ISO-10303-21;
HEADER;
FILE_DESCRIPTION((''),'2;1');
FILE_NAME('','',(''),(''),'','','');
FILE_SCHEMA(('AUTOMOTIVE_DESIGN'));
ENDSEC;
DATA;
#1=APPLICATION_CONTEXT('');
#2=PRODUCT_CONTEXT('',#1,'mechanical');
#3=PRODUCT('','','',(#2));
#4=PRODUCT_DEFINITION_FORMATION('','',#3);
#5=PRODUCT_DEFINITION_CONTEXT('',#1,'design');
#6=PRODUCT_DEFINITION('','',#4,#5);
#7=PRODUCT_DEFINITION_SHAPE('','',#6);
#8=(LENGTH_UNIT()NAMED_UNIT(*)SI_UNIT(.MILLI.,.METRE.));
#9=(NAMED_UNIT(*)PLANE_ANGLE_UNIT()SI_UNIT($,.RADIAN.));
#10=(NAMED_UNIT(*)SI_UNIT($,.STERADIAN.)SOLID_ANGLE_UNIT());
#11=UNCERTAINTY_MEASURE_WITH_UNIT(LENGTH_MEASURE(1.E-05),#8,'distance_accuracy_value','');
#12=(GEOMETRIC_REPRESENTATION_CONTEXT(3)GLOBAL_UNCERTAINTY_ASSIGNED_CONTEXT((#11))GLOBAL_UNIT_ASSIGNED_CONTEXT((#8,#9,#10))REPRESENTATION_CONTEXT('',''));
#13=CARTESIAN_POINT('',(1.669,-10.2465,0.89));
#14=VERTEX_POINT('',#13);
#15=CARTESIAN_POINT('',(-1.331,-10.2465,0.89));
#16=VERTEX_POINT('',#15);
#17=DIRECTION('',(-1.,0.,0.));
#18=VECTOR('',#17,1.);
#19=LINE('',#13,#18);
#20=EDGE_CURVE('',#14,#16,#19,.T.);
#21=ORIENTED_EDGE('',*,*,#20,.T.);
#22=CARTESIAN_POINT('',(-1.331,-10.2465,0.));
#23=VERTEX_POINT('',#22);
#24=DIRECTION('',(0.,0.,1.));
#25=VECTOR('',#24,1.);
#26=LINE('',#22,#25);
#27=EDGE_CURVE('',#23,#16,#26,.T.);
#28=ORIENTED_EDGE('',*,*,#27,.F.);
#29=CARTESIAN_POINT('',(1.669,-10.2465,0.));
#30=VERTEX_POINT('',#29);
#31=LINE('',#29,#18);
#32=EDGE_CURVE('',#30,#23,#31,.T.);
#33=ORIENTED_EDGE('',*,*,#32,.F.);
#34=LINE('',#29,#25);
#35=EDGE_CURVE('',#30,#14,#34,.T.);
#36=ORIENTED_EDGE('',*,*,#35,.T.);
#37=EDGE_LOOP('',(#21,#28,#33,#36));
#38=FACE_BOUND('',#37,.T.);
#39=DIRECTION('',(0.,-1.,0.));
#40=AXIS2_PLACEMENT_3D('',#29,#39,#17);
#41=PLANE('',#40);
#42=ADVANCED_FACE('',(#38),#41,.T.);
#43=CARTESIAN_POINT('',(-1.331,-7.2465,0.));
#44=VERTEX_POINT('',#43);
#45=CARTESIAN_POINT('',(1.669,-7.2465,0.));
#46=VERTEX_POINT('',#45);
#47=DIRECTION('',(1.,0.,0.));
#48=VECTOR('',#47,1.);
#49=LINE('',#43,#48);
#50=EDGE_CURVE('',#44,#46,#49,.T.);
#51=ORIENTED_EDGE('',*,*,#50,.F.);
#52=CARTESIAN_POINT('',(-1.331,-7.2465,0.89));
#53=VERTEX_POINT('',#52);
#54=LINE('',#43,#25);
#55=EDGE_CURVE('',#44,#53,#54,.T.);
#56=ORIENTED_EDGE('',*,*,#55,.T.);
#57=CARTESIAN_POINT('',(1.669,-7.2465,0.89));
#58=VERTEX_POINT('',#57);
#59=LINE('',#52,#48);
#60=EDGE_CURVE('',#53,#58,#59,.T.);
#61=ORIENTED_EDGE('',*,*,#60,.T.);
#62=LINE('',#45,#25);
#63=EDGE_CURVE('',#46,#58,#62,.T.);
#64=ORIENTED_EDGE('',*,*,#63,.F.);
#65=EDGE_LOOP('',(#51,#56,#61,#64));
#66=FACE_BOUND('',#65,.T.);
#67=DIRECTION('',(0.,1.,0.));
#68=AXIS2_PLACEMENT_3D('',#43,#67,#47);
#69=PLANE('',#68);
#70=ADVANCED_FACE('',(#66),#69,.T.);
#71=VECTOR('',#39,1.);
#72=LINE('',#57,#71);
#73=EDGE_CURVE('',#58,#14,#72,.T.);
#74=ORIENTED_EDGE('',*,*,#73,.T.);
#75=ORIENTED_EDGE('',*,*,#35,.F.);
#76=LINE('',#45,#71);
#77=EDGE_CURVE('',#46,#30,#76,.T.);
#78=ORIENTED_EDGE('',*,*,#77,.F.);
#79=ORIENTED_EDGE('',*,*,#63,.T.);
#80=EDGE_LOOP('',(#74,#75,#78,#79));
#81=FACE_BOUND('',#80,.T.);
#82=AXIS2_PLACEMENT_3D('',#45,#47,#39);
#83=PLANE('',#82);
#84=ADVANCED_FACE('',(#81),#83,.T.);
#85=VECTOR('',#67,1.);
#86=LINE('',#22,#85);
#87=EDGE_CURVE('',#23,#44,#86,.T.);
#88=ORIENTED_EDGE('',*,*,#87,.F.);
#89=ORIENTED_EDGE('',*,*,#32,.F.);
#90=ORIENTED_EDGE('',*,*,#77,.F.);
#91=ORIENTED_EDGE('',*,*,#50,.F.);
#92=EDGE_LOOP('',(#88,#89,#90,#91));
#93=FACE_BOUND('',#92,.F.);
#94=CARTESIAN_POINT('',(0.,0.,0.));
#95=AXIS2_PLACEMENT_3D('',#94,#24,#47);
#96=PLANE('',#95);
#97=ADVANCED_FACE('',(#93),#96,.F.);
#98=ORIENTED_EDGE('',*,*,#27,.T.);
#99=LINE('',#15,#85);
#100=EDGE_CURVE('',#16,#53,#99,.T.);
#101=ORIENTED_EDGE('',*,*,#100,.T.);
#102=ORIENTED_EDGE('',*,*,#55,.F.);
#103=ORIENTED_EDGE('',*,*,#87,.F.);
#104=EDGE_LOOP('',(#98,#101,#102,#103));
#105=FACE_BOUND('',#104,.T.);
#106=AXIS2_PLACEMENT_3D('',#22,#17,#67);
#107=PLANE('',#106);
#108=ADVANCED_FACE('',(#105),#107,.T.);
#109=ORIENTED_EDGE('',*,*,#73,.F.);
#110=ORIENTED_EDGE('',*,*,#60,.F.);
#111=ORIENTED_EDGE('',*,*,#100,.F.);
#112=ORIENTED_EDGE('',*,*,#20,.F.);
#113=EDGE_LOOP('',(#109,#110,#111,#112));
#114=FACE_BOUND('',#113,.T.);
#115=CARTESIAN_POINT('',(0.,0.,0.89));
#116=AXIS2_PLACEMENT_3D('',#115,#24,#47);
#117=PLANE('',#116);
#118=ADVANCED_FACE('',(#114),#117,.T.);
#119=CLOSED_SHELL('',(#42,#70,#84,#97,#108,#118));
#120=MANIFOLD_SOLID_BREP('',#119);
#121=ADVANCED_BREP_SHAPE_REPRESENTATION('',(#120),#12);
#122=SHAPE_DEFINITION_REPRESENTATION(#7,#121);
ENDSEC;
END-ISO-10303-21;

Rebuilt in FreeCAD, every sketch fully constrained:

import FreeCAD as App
import Part
import Sketcher

doc = App.newDocument("Part")
body = doc.addObject("PartDesign::Body", "Body")

# Sketch on XY plane
sketch1 = body.newObject("Sketcher::SketchObject", "Sketch")
sketch1.AttachmentSupport = (doc.getObject("XY_Plane"), [""])
sketch1.MapMode = "FlatFace"
sketch1.addGeometry([
    Part.LineSegment(App.Vector(1.669, -7.2465, 0), App.Vector(-1.331, -7.2465, 0)),
    Part.LineSegment(App.Vector(-1.331, -7.2465, 0), App.Vector(-1.331, -10.2465, 0)),
    Part.LineSegment(App.Vector(-1.331, -10.2465, 0), App.Vector(1.669, -10.2465, 0)),
    Part.LineSegment(App.Vector(1.669, -10.2465, 0), App.Vector(1.669, -7.2465, 0)),
], False)
sketch1.addConstraint([
    Sketcher.Constraint("Coincident", 0, 2, 1, 1),
    Sketcher.Constraint("Coincident", 1, 2, 2, 1),
    Sketcher.Constraint("Coincident", 2, 2, 3, 1),
    Sketcher.Constraint("Coincident", 3, 2, 0, 1),
    Sketcher.Constraint("Horizontal", 0),
    Sketcher.Constraint("Vertical", 1),
    Sketcher.Constraint("Horizontal", 2),
    Sketcher.Constraint("Vertical", 3),
    Sketcher.Constraint("Equal", 2, 1),
    Sketcher.Constraint("DistanceX", 0, 2, 0, 1, 3.0),
    Sketcher.Constraint("DistanceX", 0, 2, -1, 1, 1.331),
    Sketcher.Constraint("DistanceY", 0, 2, -1, 1, 7.2465),
])
pad1 = body.newObject("PartDesign::Pad", "Pad")
pad1.Profile = sketch1
pad1.Length = 0.89

doc.recompute()
